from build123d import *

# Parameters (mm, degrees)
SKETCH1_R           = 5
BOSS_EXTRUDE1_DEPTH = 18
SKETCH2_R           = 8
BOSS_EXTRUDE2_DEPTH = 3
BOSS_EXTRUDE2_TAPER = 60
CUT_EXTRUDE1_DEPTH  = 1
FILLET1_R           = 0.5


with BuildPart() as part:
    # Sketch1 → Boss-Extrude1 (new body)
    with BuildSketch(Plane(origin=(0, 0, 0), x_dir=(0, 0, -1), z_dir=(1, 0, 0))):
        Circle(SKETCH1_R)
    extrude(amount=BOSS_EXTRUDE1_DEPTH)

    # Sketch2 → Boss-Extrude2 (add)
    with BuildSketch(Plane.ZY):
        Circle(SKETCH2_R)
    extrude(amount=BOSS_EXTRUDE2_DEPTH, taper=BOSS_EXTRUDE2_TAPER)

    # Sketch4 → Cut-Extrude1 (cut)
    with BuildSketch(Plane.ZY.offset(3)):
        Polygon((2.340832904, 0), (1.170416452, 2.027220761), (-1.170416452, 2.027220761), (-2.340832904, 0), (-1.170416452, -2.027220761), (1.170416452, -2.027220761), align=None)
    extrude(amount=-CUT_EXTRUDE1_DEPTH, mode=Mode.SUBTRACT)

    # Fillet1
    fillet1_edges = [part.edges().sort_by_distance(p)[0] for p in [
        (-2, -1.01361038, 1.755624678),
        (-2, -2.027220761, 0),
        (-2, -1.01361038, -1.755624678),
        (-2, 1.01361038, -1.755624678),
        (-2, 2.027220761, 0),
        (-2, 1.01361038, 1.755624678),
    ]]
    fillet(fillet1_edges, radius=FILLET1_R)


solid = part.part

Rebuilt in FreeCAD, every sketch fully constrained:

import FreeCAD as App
import Part
import Sketcher

V = App.Vector
Q = App.Units.Quantity


def edges_at(feature, points):
    """Names of the edges that pass closest to the given points."""
    edges = feature.Shape.Edges
    near = lambda p: min(range(len(edges)), key=lambda i: edges[i].distToShape(Part.Vertex(*p))[0])
    return sorted({f"Edge{near(p) + 1}" for p in points})

doc = App.newDocument("Part")
body = doc.addObject("PartDesign::Body", "Body")

# Sketch on YZ plane
sketch1 = doc.addObject("Sketcher::SketchObject", "Sketch")
body.addObject(sketch1)
sketch1.AttachmentSupport = (doc.YZ_Plane, [""])
sketch1.MapMode = "FlatFace"
sketch1.addGeometry(Part.Circle(V(0, 0, 0), V(0, 0, 1), 5), False)
sketch1.addConstraint([
    Sketcher.Constraint("Coincident", 0, 3, -1, 1),
    Sketcher.Constraint("Diameter", 0, 10.0),
])
pad1 = doc.addObject("PartDesign::Pad", "Pad")
body.addObject(pad1)
pad1.Profile = sketch1
pad1.Length = 18

# Sketch on YZ plane
sketch2 = doc.addObject("Sketcher::SketchObject", "Sketch001")
body.addObject(sketch2)
sketch2.AttachmentSupport = (doc.YZ_Plane, [""])
sketch2.MapMode = "FlatFace"
sketch2.addGeometry(Part.Circle(V(0, 0, 0), V(0, 0, 1), 8), False)
sketch2.addConstraint([
    Sketcher.Constraint("Coincident", 0, 3, -1, 1),
    Sketcher.Constraint("Diameter", 0, 16.0),
])
pad2 = doc.addObject("PartDesign::Pad", "Pad001")
body.addObject(pad2)
pad2.Profile = sketch2
pad2.Length = 3
pad2.Reversed = True
pad2.TaperAngle = -60

# Sketch on YZ plane
sketch3 = doc.addObject("Sketcher::SketchObject", "Sketch002")
body.addObject(sketch3)
sketch3.AttachmentSupport = (doc.YZ_Plane, [""])
sketch3.MapMode = "FlatFace"
sketch3.AttachmentOffset = App.Placement(V(0, 0, -3), App.Rotation())
sketch3.addGeometry([
    Part.LineSegment(V(0, 2.3, 0), V(2, 1.2, 0)),  # 0
    Part.LineSegment(V(2, 1.2, 0), V(2, -1.2, 0)),  # 1
    Part.LineSegment(V(2, -1.2, 0), V(0, -2.3, 0)),  # 2
    Part.LineSegment(V(0, -2.3, 0), V(-2, -1.2, 0)),  # 3
    Part.LineSegment(V(-2, -1.2, 0), V(-2, 1.2, 0)),  # 4
    Part.LineSegment(V(-2, 1.2, 0), V(0, 2.3, 0)),  # 5
], False)
sketch3.addConstraint([
    Sketcher.Constraint("Coincident", 0, 2, 1, 1),
    Sketcher.Constraint("Coincident", 1, 2, 2, 1),
    Sketcher.Constraint("Coincident", 2, 2, 3, 1),
    Sketcher.Constraint("Coincident", 3, 2, 4, 1),
    Sketcher.Constraint("Coincident", 4, 2, 5, 1),
    Sketcher.Constraint("Coincident", 5, 2, 0, 1),
    Sketcher.Constraint("Vertical", 1),
    Sketcher.Constraint("Vertical", 4),
    Sketcher.Constraint("Symmetric", 0, 2, 3, 2, -1, 1),
    Sketcher.Constraint("Symmetric", 2, 2, 5, 2, -1, 1),
    Sketcher.Constraint("PointOnObject", 2, 2, -2),
    Sketcher.Constraint("Parallel", 2, 5),
    Sketcher.Constraint("Horizontal", 1, 2, 3, 2),
    Sketcher.Constraint("Angle", 0, Q("-30 deg")),
    Sketcher.Constraint("DistanceY", 1, 2, 1, 1, 2.340833),
    Sketcher.Constraint("DistanceX", -1, 1, 0, 2, 2.027221),
])
pocket1 = doc.addObject("PartDesign::Pocket", "Pocket")
body.addObject(pocket1)
pocket1.Profile = sketch3
pocket1.Length = 1
pocket1.Reversed = True
doc.recompute()

fillet = doc.addObject("PartDesign::Fillet", "Fillet")
body.addObject(fillet)
fillet.Base = (pocket1, edges_at(pocket1, [
    (-2, -1.014, 1.756),
    (-2, -2.027, 0),
    (-2, -1.014, -1.756),
    (-2, 1.014, -1.756),
    (-2, 2.027, 0),
    (-2, 1.014, 1.756),
]))
fillet.Radius = 0.5

doc.recompute()
